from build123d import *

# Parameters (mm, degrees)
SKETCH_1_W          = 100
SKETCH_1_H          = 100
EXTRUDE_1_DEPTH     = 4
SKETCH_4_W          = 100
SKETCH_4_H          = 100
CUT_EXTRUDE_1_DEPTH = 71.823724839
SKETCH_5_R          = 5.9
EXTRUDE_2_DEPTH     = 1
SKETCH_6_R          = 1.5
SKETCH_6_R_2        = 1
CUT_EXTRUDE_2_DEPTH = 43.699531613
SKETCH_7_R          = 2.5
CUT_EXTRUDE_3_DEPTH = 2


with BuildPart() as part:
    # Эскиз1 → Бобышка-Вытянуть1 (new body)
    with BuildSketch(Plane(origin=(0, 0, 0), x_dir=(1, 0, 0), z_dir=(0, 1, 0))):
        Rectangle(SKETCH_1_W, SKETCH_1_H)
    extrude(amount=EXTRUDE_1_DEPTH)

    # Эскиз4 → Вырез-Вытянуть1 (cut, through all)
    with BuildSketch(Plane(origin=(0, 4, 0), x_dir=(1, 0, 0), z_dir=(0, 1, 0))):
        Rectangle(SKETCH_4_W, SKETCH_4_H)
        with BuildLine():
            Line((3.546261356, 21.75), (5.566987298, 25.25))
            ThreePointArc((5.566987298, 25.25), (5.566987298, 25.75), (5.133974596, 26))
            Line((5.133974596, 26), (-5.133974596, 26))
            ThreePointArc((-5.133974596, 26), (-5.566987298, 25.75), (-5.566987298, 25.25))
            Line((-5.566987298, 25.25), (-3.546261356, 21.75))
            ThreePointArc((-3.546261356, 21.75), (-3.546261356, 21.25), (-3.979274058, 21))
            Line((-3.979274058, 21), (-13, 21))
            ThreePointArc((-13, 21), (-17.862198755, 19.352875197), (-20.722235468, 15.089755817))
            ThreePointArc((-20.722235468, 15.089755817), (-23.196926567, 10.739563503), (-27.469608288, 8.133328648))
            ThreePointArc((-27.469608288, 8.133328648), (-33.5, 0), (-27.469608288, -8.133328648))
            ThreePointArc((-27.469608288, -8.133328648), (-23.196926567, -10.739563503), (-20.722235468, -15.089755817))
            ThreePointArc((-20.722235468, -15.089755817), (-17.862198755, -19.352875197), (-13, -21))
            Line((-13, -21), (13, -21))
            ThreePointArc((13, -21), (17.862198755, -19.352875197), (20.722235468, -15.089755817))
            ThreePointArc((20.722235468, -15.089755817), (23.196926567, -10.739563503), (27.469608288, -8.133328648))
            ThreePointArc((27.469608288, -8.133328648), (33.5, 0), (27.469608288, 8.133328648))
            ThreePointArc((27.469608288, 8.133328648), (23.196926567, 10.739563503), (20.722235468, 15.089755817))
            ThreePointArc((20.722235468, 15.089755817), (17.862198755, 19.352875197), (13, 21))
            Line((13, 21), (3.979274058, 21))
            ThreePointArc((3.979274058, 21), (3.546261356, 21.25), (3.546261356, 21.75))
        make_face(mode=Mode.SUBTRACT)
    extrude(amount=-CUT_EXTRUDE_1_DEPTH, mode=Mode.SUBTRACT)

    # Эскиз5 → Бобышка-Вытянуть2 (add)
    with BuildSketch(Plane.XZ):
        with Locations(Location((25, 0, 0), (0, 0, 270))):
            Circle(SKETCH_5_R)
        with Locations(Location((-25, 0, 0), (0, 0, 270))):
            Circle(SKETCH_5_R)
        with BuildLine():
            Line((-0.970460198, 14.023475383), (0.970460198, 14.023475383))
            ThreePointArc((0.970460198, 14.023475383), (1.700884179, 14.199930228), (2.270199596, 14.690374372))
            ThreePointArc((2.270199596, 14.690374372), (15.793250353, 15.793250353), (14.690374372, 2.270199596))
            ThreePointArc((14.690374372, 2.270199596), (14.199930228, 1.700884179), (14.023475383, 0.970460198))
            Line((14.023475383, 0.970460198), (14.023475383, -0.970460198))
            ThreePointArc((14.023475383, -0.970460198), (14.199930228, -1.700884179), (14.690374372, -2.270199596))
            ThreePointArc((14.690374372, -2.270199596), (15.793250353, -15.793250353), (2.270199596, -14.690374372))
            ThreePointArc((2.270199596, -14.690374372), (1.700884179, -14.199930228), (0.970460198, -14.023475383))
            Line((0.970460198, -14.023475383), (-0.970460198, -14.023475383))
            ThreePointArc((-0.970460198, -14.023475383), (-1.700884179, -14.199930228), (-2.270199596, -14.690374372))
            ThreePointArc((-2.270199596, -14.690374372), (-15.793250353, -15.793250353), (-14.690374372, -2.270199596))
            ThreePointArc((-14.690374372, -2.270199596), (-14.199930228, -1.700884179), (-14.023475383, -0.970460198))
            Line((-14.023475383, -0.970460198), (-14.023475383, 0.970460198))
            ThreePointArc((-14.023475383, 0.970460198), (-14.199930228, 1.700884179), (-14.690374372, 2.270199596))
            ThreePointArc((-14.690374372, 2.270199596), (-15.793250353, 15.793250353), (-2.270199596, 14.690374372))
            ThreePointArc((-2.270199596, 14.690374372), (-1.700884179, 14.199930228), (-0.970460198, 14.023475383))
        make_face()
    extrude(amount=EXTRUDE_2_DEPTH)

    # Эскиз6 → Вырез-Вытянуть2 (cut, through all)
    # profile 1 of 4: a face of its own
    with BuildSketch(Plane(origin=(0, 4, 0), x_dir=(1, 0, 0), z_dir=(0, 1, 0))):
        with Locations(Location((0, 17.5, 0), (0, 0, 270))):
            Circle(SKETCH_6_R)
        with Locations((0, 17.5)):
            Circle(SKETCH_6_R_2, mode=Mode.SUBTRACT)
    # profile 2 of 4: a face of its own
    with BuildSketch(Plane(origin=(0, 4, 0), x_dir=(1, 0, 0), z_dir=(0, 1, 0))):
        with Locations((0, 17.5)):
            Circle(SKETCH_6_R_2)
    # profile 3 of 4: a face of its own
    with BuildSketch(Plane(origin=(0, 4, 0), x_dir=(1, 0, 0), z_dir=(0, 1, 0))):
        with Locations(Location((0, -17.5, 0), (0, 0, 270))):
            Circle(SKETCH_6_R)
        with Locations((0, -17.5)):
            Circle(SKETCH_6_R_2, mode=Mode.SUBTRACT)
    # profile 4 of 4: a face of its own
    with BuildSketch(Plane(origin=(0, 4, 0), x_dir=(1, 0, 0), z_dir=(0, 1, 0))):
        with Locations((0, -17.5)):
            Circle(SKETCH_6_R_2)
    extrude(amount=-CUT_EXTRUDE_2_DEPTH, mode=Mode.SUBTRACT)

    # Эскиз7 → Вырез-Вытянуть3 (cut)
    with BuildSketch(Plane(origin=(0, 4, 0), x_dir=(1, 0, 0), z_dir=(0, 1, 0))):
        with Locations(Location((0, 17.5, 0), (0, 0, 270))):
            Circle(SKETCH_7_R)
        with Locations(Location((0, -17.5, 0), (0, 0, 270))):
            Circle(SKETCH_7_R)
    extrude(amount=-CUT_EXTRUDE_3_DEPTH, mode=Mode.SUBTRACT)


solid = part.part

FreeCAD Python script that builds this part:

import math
import FreeCAD as App
import Part
import Sketcher

V = App.Vector
Q = App.Units.Quantity

doc = App.newDocument("Part")
body = doc.addObject("PartDesign::Body", "Body")

# Sketch on XZ plane
sketch1 = body.newObject("Sketcher::SketchObject", "Sketch")
sketch1.AttachmentSupport = (doc.getObject("XZ_Plane"), [""])
sketch1.MapMode = "FlatFace"
sketch1.addGeometry(Part.LineSegment(V(-50, -50, 0), V(-50, 50, 0)), False)
sketch1.addGeometry(Part.LineSegment(V(-50, 50, 0), V(50, 50, 0)), False)
sketch1.addGeometry(Part.LineSegment(V(50, 50, 0), V(50, -50, 0)), False)
sketch1.addGeometry(Part.LineSegment(V(50, -50, 0), V(-50, -50, 0)), False)
sketch1.addConstraint(Sketcher.Constraint("Coincident", 0, 2, 1, 1))
sketch1.addConstraint(Sketcher.Constraint("Coincident", 1, 2, 2, 1))
sketch1.addConstraint(Sketcher.Constraint("Coincident", 2, 2, 3, 1))
sketch1.addConstraint(Sketcher.Constraint("Coincident", 3, 2, 0, 1))
sketch1.addConstraint(Sketcher.Constraint("Vertical", 0))
sketch1.addConstraint(Sketcher.Constraint("Horizontal", 1))
sketch1.addConstraint(Sketcher.Constraint("Vertical", 2))
sketch1.addConstraint(Sketcher.Constraint("Horizontal", 3))
sketch1.addConstraint(Sketcher.Constraint("Symmetric", 0, 2, 2, 2, -1, 1))
sketch1.addConstraint(Sketcher.Constraint("Equal", 3, 0))
sketch1.addConstraint(Sketcher.Constraint("DistanceX", 1, 1, 1, 2, Q("100 mm")))
pad1 = body.newObject("PartDesign::Pad", "Pad")
pad1.Profile = sketch1
pad1.Length = 4
pad1.Reversed = True

# Sketch on XZ plane
sketch2 = body.newObject("Sketcher::SketchObject", "Sketch001")
sketch2.AttachmentSupport = (doc.getObject("XZ_Plane"), [""])
sketch2.MapMode = "FlatFace"
sketch2.AttachmentOffset = App.Placement(V(0, 0, -4), App.Rotation())
sketch2.addGeometry(Part.LineSegment(V(-50, -50, 0), V(-50, 50, 0)), False)
sketch2.addGeometry(Part.LineSegment(V(-50, 50, 0), V(50, 50, 0)), False)
sketch2.addGeometry(Part.LineSegment(V(50, 50, 0), V(50, -50, 0)), False)
sketch2.addGeometry(Part.LineSegment(V(50, -50, 0), V(-50, -50, 0)), False)
sketch2.addGeometry(Part.LineSegment(V(5.6, -25.2, 0), V(3.5, -21.8, 0)), False)
sketch2.addGeometry(Part.ArcOfCircle(Part.Circle(V(4, -21.5, 0), V(0, 0, 1), 0.5), math.radians(90), math.radians(210)), False)
sketch2.addGeometry(Part.LineSegment(V(4, -21, 0), V(13, -21, 0)), False)
sketch2.addGeometry(Part.ArcOfCircle(Part.Circle(V(13, -13, 0), V(0, 0, 1), 8), math.radians(-90), math.radians(-15)), False)
sketch2.addGeometry(Part.ArcOfCircle(Part.Circle(V(30.4, -17.7, 0), V(0, 0, 1), 10), math.radians(107), math.radians(165)), False)
sketch2.addGeometry(Part.ArcOfCircle(Part.Circle(V(25, 0, 0), V(0, 0, 1), 8.5), math.radians(-73), math.radians(73)), False)
sketch2.addGeometry(Part.ArcOfCircle(Part.Circle(V(30.4, 17.7, 0), V(0, 0, 1), 10), math.radians(-165), math.radians(-107)), False)
sketch2.addGeometry(Part.ArcOfCircle(Part.Circle(V(13, 13, 0), V(0, 0, 1), 8), math.radians(15), math.radians(90)), False)
sketch2.addGeometry(Part.LineSegment(V(13, 21, 0), V(-13, 21, 0)), False)
sketch2.addGeometry(Part.ArcOfCircle(Part.Circle(V(-13, 13, 0), V(0, 0, 1), 8), math.radians(90), math.radians(165)), False)
sketch2.addGeometry(Part.ArcOfCircle(Part.Circle(V(-30.4, 17.7, 0), V(0, 0, 1), 10), math.radians(-73), math.radians(-15)), False)
sketch2.addGeometry(Part.ArcOfCircle(Part.Circle(V(-25, 0, 0), V(0, 0, 1), 8.5), math.radians(107), math.radians(253)), False)
sketch2.addGeometry(Part.ArcOfCircle(Part.Circle(V(-30.4, -17.7, 0), V(0, 0, 1), 10), math.radians(15), math.radians(73)), False)
sketch2.addGeometry(Part.ArcOfCircle(Part.Circle(V(-13, -13, 0), V(0, 0, 1), 8), math.radians(-165), math.radians(-90)), False)
sketch2.addGeometry(Part.LineSegment(V(-13, -21, 0), V(-4, -21, 0)), False)
sketch2.addGeometry(Part.ArcOfCircle(Part.Circle(V(-4, -21.5, 0), V(0, 0, 1), 0.5), math.radians(-30), math.radians(90)), False)
sketch2.addGeometry(Part.LineSegment(V(-3.5, -21.8, 0), V(-5.6, -25.2, 0)), False)
sketch2.addGeometry(Part.ArcOfCircle(Part.Circle(V(-5.1, -25.5, 0), V(0, 0, 1), 0.5), math.radians(150), math.radians(270)), False)
sketch2.addGeometry(Part.LineSegment(V(-5.1, -26, 0), V(5.1, -26, 0)), False)
sketch2.addGeometry(Part.ArcOfCircle(Part.Circle(V(5.1, -25.5, 0), V(0, 0, 1), 0.5), math.radians(-90), math.radians(30)), False)
sketch2.addConstraint(Sketcher.Constraint("Coincident", 0, 2, 1, 1))
sketch2.addConstraint(Sketcher.Constraint("Coincident", 1, 2, 2, 1))
sketch2.addConstraint(Sketcher.Constraint("Coincident", 2, 2, 3, 1))
sketch2.addConstraint(Sketcher.Constraint("Coincident", 3, 2, 0, 1))
sketch2.addConstraint(Sketcher.Constraint("Tangent", 4, 2, 5, 2))
sketch2.addConstraint(Sketcher.Constraint("Tangent", 5, 1, 6, 1))
sketch2.addConstraint(Sketcher.Constraint("Tangent", 6, 2, 7, 1))
sketch2.addConstraint(Sketcher.Constraint("Tangent", 7, 2, 8, 2))
sketch2.addConstraint(Sketcher.Constraint("Tangent", 8, 1, 9, 1))
sketch2.addConstraint(Sketcher.Constraint("Tangent", 9, 2, 10, 2))
sketch2.addConstraint(Sketcher.Constraint("Tangent", 10, 1, 11, 1))
sketch2.addConstraint(Sketcher.Constraint("Tangent", 11, 2, 12, 1))
sketch2.addConstraint(Sketcher.Constraint("Tangent", 12, 2, 13, 1))
sketch2.addConstraint(Sketcher.Constraint("Tangent", 13, 2, 14, 2))
sketch2.addConstraint(Sketcher.Constraint("Tangent", 14, 1, 15, 1))
sketch2.addConstraint(Sketcher.Constraint("Tangent", 15, 2, 16, 2))
sketch2.addConstraint(Sketcher.Constraint("Tangent", 16, 1, 17, 1))
sketch2.addConstraint(Sketcher.Constraint("Tangent", 17, 2, 18, 1))
sketch2.addConstraint(Sketcher.Constraint("Tangent", 18, 2, 19, 2))
sketch2.addConstraint(Sketcher.Constraint("Tangent", 19, 1, 20, 1))
sketch2.addConstraint(Sketcher.Constraint("Tangent", 20, 2, 21, 1))
sketch2.addConstraint(Sketcher.Constraint("Tangent", 21, 2, 22, 1))
sketch2.addConstraint(Sketcher.Constraint("Tangent", 22, 2, 23, 1))
sketch2.addConstraint(Sketcher.Constraint("Tangent", 23, 2, 4, 1))
sketch2.addConstraint(Sketcher.Constraint("Vertical", 0))
sketch2.addConstraint(Sketcher.Constraint("Horizontal", 1))
sketch2.addConstraint(Sketcher.Constraint("Vertical", 2))
sketch2.addConstraint(Sketcher.Constraint("Horizontal", 3))
sketch2.addConstraint(Sketcher.Constraint("Horizontal", 6))
sketch2.addConstraint(Sketcher.Constraint("Horizontal", 12))
sketch2.addConstraint(Sketcher.Constraint("Horizontal", 18))
sketch2.addConstraint(Sketcher.Constraint("Horizontal", 22))
sketch2.addConstraint(Sketcher.Constraint("Equal", 8, 10))
sketch2.addConstraint(Sketcher.Constraint("Equal", 7, 11))
sketch2.addConstraint(Sketcher.Constraint("Equal", 11, 13))
sketch2.addConstraint(Sketcher.Constraint("Equal", 10, 14))
sketch2.addConstraint(Sketcher.Constraint("Equal", 9, 15))
sketch2.addConstraint(Sketcher.Constraint("Equal", 14, 16))
sketch2.addConstraint(Sketcher.Constraint("Equal", 13, 17))
sketch2.addConstraint(Sketcher.Constraint("Equal", 5, 19))
sketch2.addConstraint(Sketcher.Constraint("Equal", 19, 21))
sketch2.addConstraint(Sketcher.Constraint("Equal", 21, 23))
sketch2.addConstraint(Sketcher.Constraint("Symmetric", 7, 3, 13, 3, -1, 1))
sketch2.addConstraint(Sketcher.Constraint("Symmetric", 9, 3, 15, 3, -1, 1))
sketch2.addConstraint(Sketcher.Constraint("Symmetric", 11, 3, 17, 3, -1, 1))
sketch2.addConstraint(Sketcher.Constraint("Symmetric", 0, 2, 2, 2, -1, 1))
sketch2.addConstraint(Sketcher.Constraint("Symmetric", 10, 3, 14, 3, -2))
sketch2.addConstraint(Sketcher.Constraint("Symmetric", 4, 2, 19, 1, -2))
sketch2.addConstraint(Sketcher.Constraint("Equal", 3, 0))
sketch2.addConstraint(Sketcher.Constraint("Radius", 7, Q("8 mm")))
sketch2.addConstraint(Sketcher.Constraint("Radius", 8, Q("10 mm")))
sketch2.addConstraint(Sketcher.Constraint("Radius", 5, Q("0.5 mm")))
sketch2.addConstraint(Sketcher.Constraint("Radius", 9, Q("8.5 mm")))
sketch2.addConstraint(Sketcher.Constraint("DistanceX", 1, 1, 1, 2, Q("100 mm")))
sketch2.addConstraint(Sketcher.Constraint("DistanceX", 12, 2, 12, 1, Q("26 mm")))
sketch2.addConstraint(Sketcher.Constraint("Angle", 4, Q("120 deg")))
sketch2.addConstraint(Sketcher.Constraint("DistanceY", 7, 3, -1, 1, Q("13 mm")))
sketch2.addConstraint(Sketcher.Constraint("DistanceX", -1, 1, 9, 3, Q("25 mm")))
sketch2.addConstraint(Sketcher.Constraint("DistanceY", 21, 2, -1, 1, Q("26 mm")))
sketch2.addConstraint(Sketcher.Constraint("DistanceX", 22, 1, 22, 2, Q("10.267949 mm")))
pocket1 = body.newObject("PartDesign::Pocket", "Pocket")
pocket1.Profile = sketch2
pocket1.Type = "ThroughAll"
pocket1.Reversed = True

# Sketch on XZ plane
sketch3 = body.newObject("Sketcher::SketchObject", "Sketch002")
sketch3.AttachmentSupport = (doc.getObject("XZ_Plane"), [""])
sketch3.MapMode = "FlatFace"
sketch3.addGeometry(Part.Circle(V(25, 0, 0), V(0, 0, 1), 5.9), False)
sketch3.addGeometry(Part.Circle(V(-25, 0, 0), V(0, 0, 1), 5.9), False)
sketch3.addGeometry(Part.LineSegment(V(1, 14, 0), V(-1, 14, 0)), False)
sketch3.addGeometry(Part.ArcOfCircle(Part.Circle(V(-1, 15.6, 0), V(0, 0, 1), 1.6), math.radians(-144), math.radians(-90)), False)
sketch3.addGeometry(Part.ArcOfCircle(Part.Circle(V(-9.5, 9.5, 0), V(0, 0, 1), 8.9), math.radians(36), math.radians(234)), False)
sketch3.addGeometry(Part.ArcOfCircle(Part.Circle(V(-15.6, 1, 0), V(0, 0, 1), 1.6), math.radians(0), math.radians(54)), False)
sketch3.addGeometry(Part.LineSegment(V(-14, 1, 0), V(-14, -1, 0)), False)
sketch3.addGeometry(Part.ArcOfCircle(Part.Circle(V(-15.6, -1, 0), V(0, 0, 1), 1.6), math.radians(-54), math.radians(0)), False)
sketch3.addGeometry(Part.ArcOfCircle(Part.Circle(V(-9.5, -9.5, 0), V(0, 0, 1), 8.9), math.radians(126), math.radians(324)), False)
sketch3.addGeometry(Part.ArcOfCircle(Part.Circle(V(-1, -15.6, 0), V(0, 0, 1), 1.6), math.radians(90), math.radians(144)), False)
sketch3.addGeometry(Part.LineSegment(V(-1, -14, 0), V(1, -14, 0)), False)
sketch3.addGeometry(Part.ArcOfCircle(Part.Circle(V(1, -15.6, 0), V(0, 0, 1), 1.6), math.radians(36), math.radians(90)), False)
sketch3.addGeometry(Part.ArcOfCircle(Part.Circle(V(9.5, -9.5, 0), V(0, 0, 1), 8.9), math.radians(-144), math.radians(54)), False)
sketch3.addGeometry(Part.ArcOfCircle(Part.Circle(V(15.6, -1, 0), V(0, 0, 1), 1.6), math.radians(180), math.radians(234)), False)
sketch3.addGeometry(Part.LineSegment(V(14, -1, 0), V(14, 1, 0)), False)
sketch3.addGeometry(Part.ArcOfCircle(Part.Circle(V(15.6, 1, 0), V(0, 0, 1), 1.6), math.radians(126), math.radians(180)), False)
sketch3.addGeometry(Part.ArcOfCircle(Part.Circle(V(9.5, 9.5, 0), V(0, 0, 1), 8.9), math.radians(-54), math.radians(144)), False)
sketch3.addGeometry(Part.ArcOfCircle(Part.Circle(V(1, 15.6, 0), V(0, 0, 1), 1.6), math.radians(-90), math.radians(-36)), False)
sketch3.addConstraint(Sketcher.Constraint("Tangent", 2, 2, 3, 2))
sketch3.addConstraint(Sketcher.Constraint("Tangent", 3, 1, 4, 1))
sketch3.addConstraint(Sketcher.Constraint("Tangent", 4, 2, 5, 2))
sketch3.addConstraint(Sketcher.Constraint("Tangent", 5, 1, 6, 1))
sketch3.addConstraint(Sketcher.Constraint("Tangent", 6, 2, 7, 2))
sketch3.addConstraint(Sketcher.Constraint("Tangent", 7, 1, 8, 1))
sketch3.addConstraint(Sketcher.Constraint("Tangent", 8, 2, 9, 2))
sketch3.addConstraint(Sketcher.Constraint("Tangent", 9, 1, 10, 1))
sketch3.addConstraint(Sketcher.Constraint("Tangent", 10, 2, 11, 2))
sketch3.addConstraint(Sketcher.Constraint("Tangent", 11, 1, 12, 1))
sketch3.addConstraint(Sketcher.Constraint("Tangent", 12, 2, 13, 2))
sketch3.addConstraint(Sketcher.Constraint("Tangent", 13, 1, 14, 1))
sketch3.addConstraint(Sketcher.Constraint("Tangent", 14, 2, 15, 2))
sketch3.addConstraint(Sketcher.Constraint("Tangent", 15, 1, 16, 1))
sketch3.addConstraint(Sketcher.Constraint("Tangent", 16, 2, 17, 2))
sketch3.addConstraint(Sketcher.Constraint("Tangent", 17, 1, 2, 1))
sketch3.addConstraint(Sketcher.Constraint("Horizontal", 2))
sketch3.addConstraint(Sketcher.Constraint("Vertical", 6))
sketch3.addConstraint(Sketcher.Constraint("Horizontal", 10))
sketch3.addConstraint(Sketcher.Constraint("Vertical", 14))
sketch3.addConstraint(Sketcher.Constraint("Equal", 0, 1))
sketch3.addConstraint(Sketcher.Constraint("Equal", 3, 5))
sketch3.addConstraint(Sketcher.Constraint("Equal", 5, 7))
sketch3.addConstraint(Sketcher.Constraint("Equal", 4, 8))
sketch3.addConstraint(Sketcher.Constraint("Equal", 7, 9))
sketch3.addConstraint(Sketcher.Constraint("Equal", 9, 11))
sketch3.addConstraint(Sketcher.Constraint("Equal", 8, 12))
sketch3.addConstraint(Sketcher.Constraint("Equal", 11, 13))
sketch3.addConstraint(Sketcher.Constraint("Equal", 13, 15))
sketch3.addConstraint(Sketcher.Constraint("Equal", 12, 16))
sketch3.addConstraint(Sketcher.Constraint("Equal", 15, 17))
sketch3.addConstraint(Sketcher.Constraint("Symmetric", 0, 3, 1, 3, -1, 1))
sketch3.addConstraint(Sketcher.Constraint("Symmetric", 3, 3, 11, 3, -1, 1))
sketch3.addConstraint(Sketcher.Constraint("Symmetric", 5, 3, 13, 3, -1, 1))
sketch3.addConstraint(Sketcher.Constraint("Symmetric", 8, 3, 16, 3, -1, 1))
sketch3.addConstraint(Sketcher.Constraint("Symmetric", 8, 3, 12, 3, -2))
sketch3.addConstraint(Sketcher.Constraint("PointOnObject", 0, 3, -1))
sketch3.addConstraint(Sketcher.Constraint("Equal", 10, 6))
sketch3.addConstraint(Sketcher.Constraint("Diameter", 0, Q("11.8 mm")))
sketch3.addConstraint(Sketcher.Constraint("Radius", 3, Q("1.6 mm")))
sketch3.addConstraint(Sketcher.Constraint("Radius", 4, Q("8.9 mm")))
sketch3.addConstraint(Sketcher.Constraint("DistanceX", -1, 1, 0, 3, Q("25 mm")))
sketch3.addConstraint(Sketcher.Constraint("DistanceY", 8, 3, 4, 3, Q("19 mm")))
sketch3.addConstraint(Sketcher.Constraint("DistanceX", 8, 3, 12, 3, Q("19 mm")))
sketch3.addConstraint(Sketcher.Constraint("DistanceX", 2, 2, 2, 1, Q("1.94092 mm")))
pad2 = body.newObject("PartDesign::Pad", "Pad001")
pad2.Profile = sketch3
pad2.Length = 1

# Sketch on XZ plane
sketch4 = body.newObject("Sketcher::SketchObject", "Sketch003")
sketch4.AttachmentSupport = (doc.getObject("XZ_Plane"), [""])
sketch4.MapMode = "FlatFace"
sketch4.AttachmentOffset = App.Placement(V(0, 0, -4), App.Rotation())
sketch4.addGeometry(Part.Circle(V(0, -17.5, 0), V(0, 0, 1), 1.5), False)
sketch4.addGeometry(Part.Circle(V(0, 17.5, 0), V(0, 0, 1), 1.5), False)
sketch4.addConstraint(Sketcher.Constraint("Equal", 0, 1))
sketch4.addConstraint(Sketcher.Constraint("Symmetric", 0, 3, 1, 3, -1, 1))
sketch4.addConstraint(Sketcher.Constraint("PointOnObject", 0, 3, -2))
sketch4.addConstraint(Sketcher.Constraint("Diameter", 0, Q("3 mm")))
sketch4.addConstraint(Sketcher.Constraint("DistanceY", 0, 3, 1, 3, Q("35 mm")))
pocket2 = body.newObject("PartDesign::Pocket", "Pocket001")
pocket2.Profile = sketch4
pocket2.Length = 43.699532
pocket2.Reversed = True

# Sketch on XZ plane
sketch5 = body.newObject("Sketcher::SketchObject", "Sketch004")
sketch5.AttachmentSupport = (doc.getObject("XZ_Plane"), [""])
sketch5.MapMode = "FlatFace"
sketch5.AttachmentOffset = App.Placement(V(0, 0, -4), App.Rotation())
sketch5.addGeometry(Part.Circle(V(0, -17.5, 0), V(0, 0, 1), 2.5), False)
sketch5.addGeometry(Part.Circle(V(0, 17.5, 0), V(0, 0, 1), 2.5), False)
sketch5.addConstraint(Sketcher.Constraint("Equal", 0, 1))
sketch5.addConstraint(Sketcher.Constraint("Symmetric", 0, 3, 1, 3, -1, 1))
sketch5.addConstraint(Sketcher.Constraint("PointOnObject", 0, 3, -2))
sketch5.addConstraint(Sketcher.Constraint("Diameter", 0, Q("5 mm")))
sketch5.addConstraint(Sketcher.Constraint("DistanceY", 0, 3, 1, 3, Q("35 mm")))
pocket3 = body.newObject("PartDesign::Pocket", "Pocket002")
pocket3.Profile = sketch5
pocket3.Length = 2
pocket3.Reversed = True

doc.recompute()
